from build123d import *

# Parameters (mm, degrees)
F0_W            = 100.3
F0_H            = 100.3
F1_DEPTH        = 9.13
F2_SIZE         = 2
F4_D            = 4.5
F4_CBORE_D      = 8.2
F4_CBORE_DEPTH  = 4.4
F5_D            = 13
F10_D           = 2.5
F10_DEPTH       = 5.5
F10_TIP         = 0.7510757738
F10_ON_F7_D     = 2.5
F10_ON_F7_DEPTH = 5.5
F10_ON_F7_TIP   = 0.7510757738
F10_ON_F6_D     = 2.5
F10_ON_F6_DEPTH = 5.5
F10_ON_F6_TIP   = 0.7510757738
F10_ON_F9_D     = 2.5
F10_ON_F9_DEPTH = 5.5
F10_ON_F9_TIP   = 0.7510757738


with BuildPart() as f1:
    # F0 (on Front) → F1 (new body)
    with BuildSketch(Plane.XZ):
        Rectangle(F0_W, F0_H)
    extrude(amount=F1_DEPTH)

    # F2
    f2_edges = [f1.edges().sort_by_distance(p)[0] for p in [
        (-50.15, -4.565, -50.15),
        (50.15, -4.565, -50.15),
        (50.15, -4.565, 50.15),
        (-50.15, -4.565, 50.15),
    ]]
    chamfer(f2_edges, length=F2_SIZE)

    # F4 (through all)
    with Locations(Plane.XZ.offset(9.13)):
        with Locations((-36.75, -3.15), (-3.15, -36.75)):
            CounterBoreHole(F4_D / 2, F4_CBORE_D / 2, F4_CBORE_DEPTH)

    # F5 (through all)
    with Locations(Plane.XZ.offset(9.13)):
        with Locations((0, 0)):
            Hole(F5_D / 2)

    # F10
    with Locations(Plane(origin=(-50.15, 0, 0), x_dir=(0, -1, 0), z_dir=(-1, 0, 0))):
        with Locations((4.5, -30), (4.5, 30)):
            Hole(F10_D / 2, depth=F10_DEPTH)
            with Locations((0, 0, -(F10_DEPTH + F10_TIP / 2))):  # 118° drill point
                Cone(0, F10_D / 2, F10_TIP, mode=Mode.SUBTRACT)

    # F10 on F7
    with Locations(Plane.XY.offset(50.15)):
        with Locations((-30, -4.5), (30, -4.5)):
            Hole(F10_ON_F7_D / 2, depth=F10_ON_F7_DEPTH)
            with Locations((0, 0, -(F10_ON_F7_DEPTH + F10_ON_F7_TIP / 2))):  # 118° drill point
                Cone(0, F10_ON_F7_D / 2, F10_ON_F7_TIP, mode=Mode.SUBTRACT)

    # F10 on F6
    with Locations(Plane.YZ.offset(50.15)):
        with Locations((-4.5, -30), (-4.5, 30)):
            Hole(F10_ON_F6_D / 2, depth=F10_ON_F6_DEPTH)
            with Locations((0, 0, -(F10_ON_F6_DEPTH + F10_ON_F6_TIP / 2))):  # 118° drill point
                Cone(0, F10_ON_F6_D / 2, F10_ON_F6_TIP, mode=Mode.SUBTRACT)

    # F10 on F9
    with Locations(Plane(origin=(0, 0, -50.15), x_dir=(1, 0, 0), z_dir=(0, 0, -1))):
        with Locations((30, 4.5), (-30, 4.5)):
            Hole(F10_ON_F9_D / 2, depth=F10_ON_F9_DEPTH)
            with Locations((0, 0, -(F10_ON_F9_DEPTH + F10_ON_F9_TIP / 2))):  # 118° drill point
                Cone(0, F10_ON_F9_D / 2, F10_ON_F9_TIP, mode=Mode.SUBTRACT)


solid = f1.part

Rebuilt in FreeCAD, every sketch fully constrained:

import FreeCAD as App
import Part
import Sketcher


def edges_at(feature, points):
    """Names of the edges that pass closest to the given points."""
    edges = feature.Shape.Edges
    near = lambda p: min(range(len(edges)), key=lambda i: edges[i].distToShape(Part.Vertex(*p))[0])
    return sorted({f"Edge{near(p) + 1}" for p in points})

doc = App.newDocument("Part")
body = doc.addObject("PartDesign::Body", "Body")

sketch1 = body.newObject("Sketcher::SketchObject", "Sketch")
sketch1.AttachmentSupport = (doc.getObject("XZ_Plane"), [""])
sketch1.MapMode = "FlatFace"
sketch1.addGeometry([
    Part.LineSegment(App.Vector(-50, 50, 0), App.Vector(-50, -50, 0)),
    Part.LineSegment(App.Vector(-50, -50, 0), App.Vector(50, -50, 0)),
    Part.LineSegment(App.Vector(50, -50, 0), App.Vector(50, 50, 0)),
    Part.LineSegment(App.Vector(50, 50, 0), App.Vector(-50, 50, 0)),
], False)
sketch1.addConstraint([
    Sketcher.Constraint("Coincident", 0, 2, 1, 1),
    Sketcher.Constraint("Coincident", 1, 2, 2, 1),
    Sketcher.Constraint("Coincident", 2, 2, 3, 1),
    Sketcher.Constraint("Coincident", 3, 2, 0, 1),
    Sketcher.Constraint("Vertical", 0),
    Sketcher.Constraint("Horizontal", 1),
    Sketcher.Constraint("Vertical", 2),
    Sketcher.Constraint("Horizontal", 3),
    Sketcher.Constraint("Symmetric", 0, 2, 2, 2, -1, 1),
    Sketcher.Constraint("Equal", 3, 0),
    Sketcher.Constraint("DistanceX", 1, 1, 1, 2, 100.3),
])
pad1 = body.newObject("PartDesign::Pad", "Pad")
pad1.Profile = sketch1
pad1.Length = 9.13
doc.recompute()

chamfer = body.newObject("PartDesign::Chamfer", "Chamfer")
chamfer.Base = (pad1, edges_at(pad1, [
    (-50.15, -4.565, -50.15),
    (50.15, -4.565, -50.15),
    (50.15, -4.565, 50.15),
    (-50.15, -4.565, 50.15),
]))
chamfer.Size = 2

sketch2 = body.newObject("Sketcher::SketchObject", "Sketch001")
sketch2.AttachmentSupport = (doc.getObject("XZ_Plane"), [""])
sketch2.MapMode = "FlatFace"
sketch2.AttachmentOffset = App.Placement(App.Vector(0, 0, 9.13), App.Rotation())
sketch2.addGeometry([
    Part.Circle(App.Vector(-36.8, -3.1, 0), App.Vector(0, 0, 1), 2.2),
    Part.Circle(App.Vector(-3.1, -36.8, 0), App.Vector(0, 0, 1), 2.2),
], False)
sketch2.addConstraint([
    Sketcher.Constraint("Equal", 0, 1),
    Sketcher.Constraint("Diameter", 0, 4.5),
    Sketcher.Constraint("DistanceX", 0, 3, 1, 3, 33.6),
    Sketcher.Constraint("DistanceY", 1, 3, 0, 3, 33.6),
    Sketcher.Constraint("DistanceX", 0, 3, -1, 1, 36.75),
    Sketcher.Constraint("DistanceY", 0, 3, -1, 1, 3.15),
])
doc.recompute()
hole = body.newObject("PartDesign::Hole", "Hole")
hole.Profile = sketch2
hole.ThreadType = "None"
hole.Diameter = 4.5
hole.DepthType = "ThroughAll"
hole.HoleCutType = "Counterbore"
hole.HoleCutDiameter = 8.2
hole.HoleCutDepth = 4.4

sketch3 = body.newObject("Sketcher::SketchObject", "Sketch002")
sketch3.AttachmentSupport = (doc.getObject("XZ_Plane"), [""])
sketch3.MapMode = "FlatFace"
sketch3.AttachmentOffset = App.Placement(App.Vector(0, 0, 9.13), App.Rotation())
sketch3.addGeometry(Part.Circle(App.Vector(0, 0, 0), App.Vector(0, 0, 1), 6), False)
sketch3.addConstraint([
    Sketcher.Constraint("Coincident", 0, 3, -1, 1),
    Sketcher.Constraint("Diameter", 0, 13.0),
])
doc.recompute()
hole2 = body.newObject("PartDesign::Hole", "Hole001")
hole2.Profile = sketch3
hole2.ThreadType = "None"
hole2.Diameter = 13
hole2.DepthType = "ThroughAll"

sketch4 = body.newObject("Sketcher::SketchObject", "Sketch003")
sketch4.AttachmentSupport = (doc.getObject("YZ_Plane"), [""])
sketch4.MapMode = "FlatFace"
sketch4.AttachmentOffset = App.Placement(App.Vector(0, 0, -50.15), App.Rotation())
sketch4.addGeometry([
    Part.Circle(App.Vector(-4.5, -30, 0), App.Vector(0, 0, 1), 1.2),
    Part.Circle(App.Vector(-4.5, 30, 0), App.Vector(0, 0, 1), 1.2),
], False)
sketch4.addConstraint([
    Sketcher.Constraint("Equal", 0, 1),
    Sketcher.Constraint("Symmetric", 0, 3, 1, 3, -1),
    Sketcher.Constraint("Diameter", 0, 2.5),
    Sketcher.Constraint("DistanceY", 0, 3, -1, 1, 30.0),
    Sketcher.Constraint("DistanceX", 0, 3, -1, 1, 4.5),
])
doc.recompute()
hole3 = body.newObject("PartDesign::Hole", "Hole002")
hole3.Profile = sketch4
hole3.ThreadType = "None"
hole3.Diameter = 2.5
hole3.DepthType = "Dimension"
hole3.Depth = 5.5
hole3.DrillPoint = "Angled"
hole3.DrillPointAngle = 118
hole3.Reversed = True

sketch5 = body.newObject("Sketcher::SketchObject", "Sketch004")
sketch5.AttachmentSupport = (doc.getObject("XY_Plane"), [""])
sketch5.MapMode = "FlatFace"
sketch5.AttachmentOffset = App.Placement(App.Vector(0, 0, 50.15), App.Rotation())
sketch5.addGeometry([
    Part.Circle(App.Vector(-30, -4.5, 0), App.Vector(0, 0, 1), 1.2),
    Part.Circle(App.Vector(30, -4.5, 0), App.Vector(0, 0, 1), 1.2),
], False)
sketch5.addConstraint([
    Sketcher.Constraint("Equal", 0, 1),
    Sketcher.Constraint("Symmetric", 0, 3, 1, 3, -2),
    Sketcher.Constraint("Diameter", 0, 2.5),
    Sketcher.Constraint("DistanceX", 0, 3, -1, 1, 30.0),
    Sketcher.Constraint("DistanceY", 0, 3, -1, 1, 4.5),
])
doc.recompute()
hole4 = body.newObject("PartDesign::Hole", "Hole003")
hole4.Profile = sketch5
hole4.ThreadType = "None"
hole4.Diameter = 2.5
hole4.DepthType = "Dimension"
hole4.Depth = 5.5
hole4.DrillPoint = "Angled"
hole4.DrillPointAngle = 118

sketch6 = body.newObject("Sketcher::SketchObject", "Sketch005")
sketch6.AttachmentSupport = (doc.getObject("YZ_Plane"), [""])
sketch6.MapMode = "FlatFace"
sketch6.AttachmentOffset = App.Placement(App.Vector(0, 0, 50.15), App.Rotation())
sketch6.addGeometry([
    Part.Circle(App.Vector(-4.5, -30, 0), App.Vector(0, 0, 1), 1.2),
    Part.Circle(App.Vector(-4.5, 30, 0), App.Vector(0, 0, 1), 1.2),
], False)
sketch6.addConstraint([
    Sketcher.Constraint("Equal", 0, 1),
    Sketcher.Constraint("Symmetric", 0, 3, 1, 3, -1),
    Sketcher.Constraint("Diameter", 0, 2.5),
    Sketcher.Constraint("DistanceY", 0, 3, -1, 1, 30.0),
    Sketcher.Constraint("DistanceX", 0, 3, -1, 1, 4.5),
])
doc.recompute()
hole5 = body.newObject("PartDesign::Hole", "Hole004")
hole5.Profile = sketch6
hole5.ThreadType = "None"
hole5.Diameter = 2.5
hole5.DepthType = "Dimension"
hole5.Depth = 5.5
hole5.DrillPoint = "Angled"
hole5.DrillPointAngle = 118

sketch7 = body.newObject("Sketcher::SketchObject", "Sketch006")
sketch7.AttachmentSupport = (doc.getObject("XY_Plane"), [""])
sketch7.MapMode = "FlatFace"
sketch7.AttachmentOffset = App.Placement(App.Vector(0, 0, -50.15), App.Rotation())
sketch7.addGeometry([
    Part.Circle(App.Vector(30, -4.5, 0), App.Vector(0, 0, 1), 1.2),
    Part.Circle(App.Vector(-30, -4.5, 0), App.Vector(0, 0, 1), 1.2),
], False)
sketch7.addConstraint([
    Sketcher.Constraint("Equal", 0, 1),
    Sketcher.Constraint("Symmetric", 0, 3, 1, 3, -2),
    Sketcher.Constraint("Diameter", 0, 2.5),
    Sketcher.Constraint("DistanceX", -1, 1, 0, 3, 30.0),
    Sketcher.Constraint("DistanceY", 0, 3, -1, 1, 4.5),
])
doc.recompute()
hole6 = body.newObject("PartDesign::Hole", "Hole005")
hole6.Profile = sketch7
hole6.ThreadType = "None"
hole6.Diameter = 2.5
hole6.DepthType = "Dimension"
hole6.Depth = 5.5
hole6.DrillPoint = "Angled"
hole6.DrillPointAngle = 118
hole6.Reversed = True

doc.recompute()
